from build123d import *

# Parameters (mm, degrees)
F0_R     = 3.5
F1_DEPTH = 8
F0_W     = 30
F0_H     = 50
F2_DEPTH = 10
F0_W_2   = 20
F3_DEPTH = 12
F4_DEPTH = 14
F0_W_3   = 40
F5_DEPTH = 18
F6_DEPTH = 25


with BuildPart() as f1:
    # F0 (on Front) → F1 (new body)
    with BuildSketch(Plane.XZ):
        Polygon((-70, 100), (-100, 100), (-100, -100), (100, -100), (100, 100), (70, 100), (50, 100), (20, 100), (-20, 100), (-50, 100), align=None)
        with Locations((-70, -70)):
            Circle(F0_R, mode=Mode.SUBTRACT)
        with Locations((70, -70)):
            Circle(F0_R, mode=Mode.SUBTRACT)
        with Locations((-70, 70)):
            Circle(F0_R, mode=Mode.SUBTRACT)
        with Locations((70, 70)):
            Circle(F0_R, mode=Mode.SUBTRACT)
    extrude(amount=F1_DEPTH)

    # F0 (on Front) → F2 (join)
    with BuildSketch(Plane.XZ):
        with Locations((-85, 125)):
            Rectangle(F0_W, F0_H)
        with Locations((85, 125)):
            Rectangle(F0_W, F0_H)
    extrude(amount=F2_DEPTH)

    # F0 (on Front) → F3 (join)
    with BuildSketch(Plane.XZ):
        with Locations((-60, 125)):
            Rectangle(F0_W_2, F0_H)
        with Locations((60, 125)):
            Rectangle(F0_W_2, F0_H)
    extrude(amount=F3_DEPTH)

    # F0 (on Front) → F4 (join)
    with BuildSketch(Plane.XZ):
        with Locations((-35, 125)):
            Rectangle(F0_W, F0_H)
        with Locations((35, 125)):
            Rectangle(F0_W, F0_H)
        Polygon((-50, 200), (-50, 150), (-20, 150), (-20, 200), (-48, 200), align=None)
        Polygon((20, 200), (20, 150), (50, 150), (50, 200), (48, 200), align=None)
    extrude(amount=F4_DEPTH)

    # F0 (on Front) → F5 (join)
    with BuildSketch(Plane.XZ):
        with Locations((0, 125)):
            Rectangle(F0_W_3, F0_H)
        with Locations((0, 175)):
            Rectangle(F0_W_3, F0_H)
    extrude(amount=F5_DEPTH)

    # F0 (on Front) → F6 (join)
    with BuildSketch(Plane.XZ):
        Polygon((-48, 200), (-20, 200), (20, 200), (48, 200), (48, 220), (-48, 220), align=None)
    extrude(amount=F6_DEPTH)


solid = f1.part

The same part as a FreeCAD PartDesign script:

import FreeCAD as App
import Part
import Sketcher
Q = App.Units.Quantity


def add_polygon(sketch, points):
    """Adds a closed chain of lines whose ends are joined by coincident constraints."""
    first, n = sketch.GeometryCount, len(points)
    for a, b in zip(points, points[1:] + points[:1]):
        sketch.addGeometry(Part.LineSegment(App.Vector(*a, 0), App.Vector(*b, 0)), False)
    for i in range(n):
        sketch.addConstraint(Sketcher.Constraint("Coincident", first + i, 2, first + (i + 1) % n, 1))

doc = App.newDocument("Part")
body = doc.addObject("PartDesign::Body", "Body")

sketch1 = body.newObject("Sketcher::SketchObject", "Sketch")
sketch1.AttachmentSupport = (doc.getObject("XZ_Plane"), [""])
sketch1.MapMode = "FlatFace"
add_polygon(sketch1, [(-100, 100), (-100, -100), (100, -100), (100, 100)])
sketch1.addGeometry(Part.Circle(App.Vector(-70, -70, 0), App.Vector(0, 0, 1), 3.5), False)
sketch1.addGeometry(Part.Circle(App.Vector(70, -70, 0), App.Vector(0, 0, 1), 3.5), False)
sketch1.addGeometry(Part.Circle(App.Vector(-70, 70, 0), App.Vector(0, 0, 1), 3.5), False)
sketch1.addGeometry(Part.Circle(App.Vector(70, 70, 0), App.Vector(0, 0, 1), 3.5), False)
sketch1.addConstraint(Sketcher.Constraint("Vertical", 0))
sketch1.addConstraint(Sketcher.Constraint("Horizontal", 1))
sketch1.addConstraint(Sketcher.Constraint("Vertical", 2))
sketch1.addConstraint(Sketcher.Constraint("Horizontal", 3))
sketch1.addConstraint(Sketcher.Constraint("Equal", 4, 5))
sketch1.addConstraint(Sketcher.Constraint("Equal", 5, 6))
sketch1.addConstraint(Sketcher.Constraint("Equal", 6, 7))
sketch1.addConstraint(Sketcher.Constraint("Symmetric", 5, 3, 6, 3, -1, 1))
sketch1.addConstraint(Sketcher.Constraint("Symmetric", 4, 3, 7, 3, -1, 1))
sketch1.addConstraint(Sketcher.Constraint("Symmetric", 0, 2, 2, 2, -1, 1))
sketch1.addConstraint(Sketcher.Constraint("Symmetric", 4, 3, 5, 3, -2))
sketch1.addConstraint(Sketcher.Constraint("Equal", 3, 0))
sketch1.addConstraint(Sketcher.Constraint("Diameter", 4, Q("7 mm")))
sketch1.addConstraint(Sketcher.Constraint("DistanceX", 1, 1, 1, 2, Q("200 mm")))
sketch1.addConstraint(Sketcher.Constraint("DistanceX", 4, 3, -1, 1, Q("70 mm")))
sketch1.addConstraint(Sketcher.Constraint("DistanceY", 4, 3, -1, 1, Q("70 mm")))
pad1 = body.newObject("PartDesign::Pad", "Pad")
pad1.Profile = sketch1
pad1.Length = 8

sketch2 = body.newObject("Sketcher::SketchObject", "Sketch001")
sketch2.AttachmentSupport = (doc.getObject("XZ_Plane"), [""])
sketch2.MapMode = "FlatFace"
add_polygon(sketch2, [(-100, 150), (-100, 100), (-70, 100), (-70, 150)])
add_polygon(sketch2, [(70, 150), (70, 100), (100, 100), (100, 150)])
sketch2.addConstraint(Sketcher.Constraint("Vertical", 0))
sketch2.addConstraint(Sketcher.Constraint("Horizontal", 1))
sketch2.addConstraint(Sketcher.Constraint("Vertical", 2))
sketch2.addConstraint(Sketcher.Constraint("Horizontal", 3))
sketch2.addConstraint(Sketcher.Constraint("Vertical", 4))
sketch2.addConstraint(Sketcher.Constraint("Horizontal", 5))
sketch2.addConstraint(Sketcher.Constraint("Vertical", 6))
sketch2.addConstraint(Sketcher.Constraint("Horizontal", 7))
sketch2.addConstraint(Sketcher.Constraint("Symmetric", 1, 2, 4, 2, -2))
sketch2.addConstraint(Sketcher.Constraint("Symmetric", 3, 2, 6, 2, -2))
sketch2.addConstraint(Sketcher.Constraint("DistanceX", 1, 1, 1, 2, Q("30 mm")))
sketch2.addConstraint(Sketcher.Constraint("DistanceY", 0, 2, 0, 1, Q("50 mm")))
sketch2.addConstraint(Sketcher.Constraint("DistanceX", 0, 2, -1, 1, Q("100 mm")))
sketch2.addConstraint(Sketcher.Constraint("DistanceY", -1, 1, 0, 2, Q("100 mm")))
pad2 = body.newObject("PartDesign::Pad", "Pad001")
pad2.Profile = sketch2
pad2.Length = 10

sketch3 = body.newObject("Sketcher::SketchObject", "Sketch002")
sketch3.AttachmentSupport = (doc.getObject("XZ_Plane"), [""])
sketch3.MapMode = "FlatFace"
add_polygon(sketch3, [(-70, 150), (-70, 100), (-50, 100), (-50, 150)])
add_polygon(sketch3, [(50, 150), (50, 100), (70, 100), (70, 150)])
sketch3.addConstraint(Sketcher.Constraint("Vertical", 0))
sketch3.addConstraint(Sketcher.Constraint("Horizontal", 1))
sketch3.addConstraint(Sketcher.Constraint("Vertical", 2))
sketch3.addConstraint(Sketcher.Constraint("Horizontal", 3))
sketch3.addConstraint(Sketcher.Constraint("Vertical", 4))
sketch3.addConstraint(Sketcher.Constraint("Horizontal", 5))
sketch3.addConstraint(Sketcher.Constraint("Vertical", 6))
sketch3.addConstraint(Sketcher.Constraint("Horizontal", 7))
sketch3.addConstraint(Sketcher.Constraint("Symmetric", 1, 2, 4, 2, -2))
sketch3.addConstraint(Sketcher.Constraint("Symmetric", 3, 2, 6, 2, -2))
sketch3.addConstraint(Sketcher.Constraint("DistanceX", 1, 1, 1, 2, Q("20 mm")))
sketch3.addConstraint(Sketcher.Constraint("DistanceY", 0, 2, 0, 1, Q("50 mm")))
sketch3.addConstraint(Sketcher.Constraint("DistanceX", 0, 2, -1, 1, Q("70 mm")))
sketch3.addConstraint(Sketcher.Constraint("DistanceY", -1, 1, 0, 2, Q("100 mm")))
pad3 = body.newObject("PartDesign::Pad", "Pad002")
pad3.Profile = sketch3
pad3.Length = 12

sketch4 = body.newObject("Sketcher::SketchObject", "Sketch003")
sketch4.AttachmentSupport = (doc.getObject("XZ_Plane"), [""])
sketch4.MapMode = "FlatFace"
add_polygon(sketch4, [(-50, 100), (-20, 100), (-20, 200), (-50, 200)])
add_polygon(sketch4, [(20, 100), (50, 100), (50, 200), (20, 200)])
sketch4.addConstraint(Sketcher.Constraint("Horizontal", 0))
sketch4.addConstraint(Sketcher.Constraint("Vertical", 1))
sketch4.addConstraint(Sketcher.Constraint("Horizontal", 2))
sketch4.addConstraint(Sketcher.Constraint("Vertical", 3))
sketch4.addConstraint(Sketcher.Constraint("Horizontal", 4))
sketch4.addConstraint(Sketcher.Constraint("Vertical", 5))
sketch4.addConstraint(Sketcher.Constraint("Horizontal", 6))
sketch4.addConstraint(Sketcher.Constraint("Vertical", 7))
sketch4.addConstraint(Sketcher.Constraint("Symmetric", 3, 2, 4, 2, -2))
sketch4.addConstraint(Sketcher.Constraint("Symmetric", 1, 2, 6, 2, -2))
sketch4.addConstraint(Sketcher.Constraint("DistanceX", 0, 1, 0, 2, Q("30 mm")))
sketch4.addConstraint(Sketcher.Constraint("DistanceY", 1, 1, 1, 2, Q("100 mm")))
sketch4.addConstraint(Sketcher.Constraint("DistanceX", 0, 2, -1, 1, Q("20 mm")))
sketch4.addConstraint(Sketcher.Constraint("DistanceY", -1, 1, 0, 2, Q("100 mm")))
pad4 = body.newObject("PartDesign::Pad", "Pad003")
pad4.Profile = sketch4
pad4.Length = 14

sketch5 = body.newObject("Sketcher::SketchObject", "Sketch004")
sketch5.AttachmentSupport = (doc.getObject("XZ_Plane"), [""])
sketch5.MapMode = "FlatFace"
add_polygon(sketch5, [(-20, 100), (20, 100), (20, 200), (-20, 200)])
sketch5.addConstraint(Sketcher.Constraint("Horizontal", 0))
sketch5.addConstraint(Sketcher.Constraint("Vertical", 1))
sketch5.addConstraint(Sketcher.Constraint("Horizontal", 2))
sketch5.addConstraint(Sketcher.Constraint("Vertical", 3))
sketch5.addConstraint(Sketcher.Constraint("DistanceX", 0, 1, 0, 2, Q("40 mm")))
sketch5.addConstraint(Sketcher.Constraint("DistanceY", 1, 1, 1, 2, Q("100 mm")))
sketch5.addConstraint(Sketcher.Constraint("DistanceX", -1, 1, 0, 2, Q("20 mm")))
sketch5.addConstraint(Sketcher.Constraint("DistanceY", -1, 1, 0, 2, Q("100 mm")))
pad5 = body.newObject("PartDesign::Pad", "Pad004")
pad5.Profile = sketch5
pad5.Length = 18

sketch6 = body.newObject("Sketcher::SketchObject", "Sketch005")
sketch6.AttachmentSupport = (doc.getObject("XZ_Plane"), [""])
sketch6.MapMode = "FlatFace"
add_polygon(sketch6, [(-48, 200), (48, 200), (48, 220), (-48, 220)])
sketch6.addConstraint(Sketcher.Constraint("Horizontal", 0))
sketch6.addConstraint(Sketcher.Constraint("Vertical", 1))
sketch6.addConstraint(Sketcher.Constraint("Horizontal", 2))
sketch6.addConstraint(Sketcher.Constraint("Vertical", 3))
sketch6.addConstraint(Sketcher.Constraint("DistanceX", 0, 1, 0, 2, Q("96 mm")))
sketch6.addConstraint(Sketcher.Constraint("DistanceY", 1, 1, 1, 2, Q("20 mm")))
sketch6.addConstraint(Sketcher.Constraint("DistanceX", -1, 1, 0, 2, Q("48 mm")))
sketch6.addConstraint(Sketcher.Constraint("DistanceY", -1, 1, 0, 2, Q("200 mm")))
pad6 = body.newObject("PartDesign::Pad", "Pad005")
pad6.Profile = sketch6
pad6.Length = 25

doc.recompute()
